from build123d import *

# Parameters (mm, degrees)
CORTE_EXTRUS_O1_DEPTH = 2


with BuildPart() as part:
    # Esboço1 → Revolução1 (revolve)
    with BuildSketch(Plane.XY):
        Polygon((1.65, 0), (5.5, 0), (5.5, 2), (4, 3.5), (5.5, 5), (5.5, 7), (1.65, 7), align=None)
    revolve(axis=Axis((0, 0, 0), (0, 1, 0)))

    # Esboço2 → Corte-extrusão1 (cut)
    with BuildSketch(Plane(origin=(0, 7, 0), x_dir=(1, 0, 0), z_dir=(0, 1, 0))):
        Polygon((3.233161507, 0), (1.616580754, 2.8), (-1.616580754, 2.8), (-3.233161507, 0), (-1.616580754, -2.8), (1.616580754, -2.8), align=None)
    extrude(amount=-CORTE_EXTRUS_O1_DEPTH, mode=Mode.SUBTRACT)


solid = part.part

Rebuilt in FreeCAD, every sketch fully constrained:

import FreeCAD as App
import Part
import Sketcher

V = App.Vector
Q = App.Units.Quantity

doc = App.newDocument("Part")
params = doc.addObject("Spreadsheet::Sheet", "Params")
for row, (alias, value) in enumerate([
    ("sketch1_height", "2 mm"),
    ("sketch1_height2", "7 mm"),
    ("sketch1_width", "3.85 mm"),
    ("revolution_angle", "360 deg"),
    ("pocket1_length", "2 mm"),
], start=1):
    params.set(f"A{row}", alias)
    params.set(f"B{row}", "=" + value)
    params.setAlias(f"B{row}", alias)

body = doc.addObject("PartDesign::Body", "Body")

# Sketch on XY plane
sketch1 = body.newObject("Sketcher::SketchObject", "Sketch")
sketch1.AttachmentSupport = (doc.getObject("XY_Plane"), [""])
sketch1.MapMode = "FlatFace"
sketch1.addGeometry(Part.LineSegment(V(1.65, 0, 0), V(5.5, 0, 0)), False)
sketch1.addGeometry(Part.LineSegment(V(5.5, 0, 0), V(5.5, 2, 0)), False)
sketch1.addGeometry(Part.LineSegment(V(5.5, 2, 0), V(4, 3.5, 0)), False)
sketch1.addGeometry(Part.LineSegment(V(4, 3.5, 0), V(5.5, 5, 0)), False)
sketch1.addGeometry(Part.LineSegment(V(5.5, 5, 0), V(5.5, 7, 0)), False)
sketch1.addGeometry(Part.LineSegment(V(5.5, 7, 0), V(1.65, 7, 0)), False)
sketch1.addGeometry(Part.LineSegment(V(1.65, 7, 0), V(1.65, 0, 0)), False)
sketch1.addConstraint(Sketcher.Constraint("Coincident", 0, 2, 1, 1))
sketch1.addConstraint(Sketcher.Constraint("Coincident", 1, 2, 2, 1))
sketch1.addConstraint(Sketcher.Constraint("Coincident", 2, 2, 3, 1))
sketch1.addConstraint(Sketcher.Constraint("Coincident", 3, 2, 4, 1))
sketch1.addConstraint(Sketcher.Constraint("Coincident", 4, 2, 5, 1))
sketch1.addConstraint(Sketcher.Constraint("Coincident", 5, 2, 6, 1))
sketch1.addConstraint(Sketcher.Constraint("Coincident", 6, 2, 0, 1))
sketch1.addConstraint(Sketcher.Constraint("Horizontal", 0))
sketch1.addConstraint(Sketcher.Constraint("Vertical", 1))
sketch1.addConstraint(Sketcher.Constraint("Vertical", 4))
sketch1.addConstraint(Sketcher.Constraint("Horizontal", 5))
sketch1.addConstraint(Sketcher.Constraint("Vertical", 6))
sketch1.addConstraint(Sketcher.Constraint("PointOnObject", 0, 2, -1))
sketch1.addConstraint(Sketcher.Constraint("Perpendicular", 2, 3))
sketch1.addConstraint(Sketcher.Constraint("Vertical", 1, 2, 3, 2))
sketch1.addConstraint(Sketcher.Constraint("Equal", 1, 4))
sketch1.addConstraint(Sketcher.Constraint("Equal", 2, 3))
sketch1.addConstraint(Sketcher.Constraint("DistanceY", 1, 1, 1, 2, Q("2 mm")))
sketch1.addConstraint(Sketcher.Constraint("DistanceY", 6, 2, 6, 1, Q("7 mm")))
sketch1.addConstraint(Sketcher.Constraint("DistanceX", -1, 1, 2, 2, Q("4 mm")))
sketch1.addConstraint(Sketcher.Constraint("DistanceX", 0, 1, 0, 2, Q("3.85 mm")))
sketch1.setExpression("Constraints[17]", "Params.sketch1_height")
sketch1.setExpression("Constraints[18]", "Params.sketch1_height2")
sketch1.setExpression("Constraints[20]", "Params.sketch1_width")
revolution = body.newObject("PartDesign::Revolution", "Revolution")
revolution.Profile = sketch1
revolution.ReferenceAxis = (sketch1, ["V_Axis"])
revolution.setExpression("Angle", "Params.revolution_angle")

# Sketch on XZ plane
sketch2 = body.newObject("Sketcher::SketchObject", "Sketch001")
sketch2.AttachmentSupport = (doc.getObject("XZ_Plane"), [""])
sketch2.MapMode = "FlatFace"
sketch2.AttachmentOffset = App.Placement(V(0, 0, -7), App.Rotation())
sketch2.addGeometry(Part.LineSegment(V(3.233162, 0, 0), V(1.616581, -2.8, 0)), False)
sketch2.addGeometry(Part.LineSegment(V(1.616581, -2.8, 0), V(-1.616581, -2.8, 0)), False)
sketch2.addGeometry(Part.LineSegment(V(-1.616581, -2.8, 0), V(-3.233162, 0, 0)), False)
sketch2.addGeometry(Part.LineSegment(V(-3.233162, 0, 0), V(-1.616581, 2.8, 0)), False)
sketch2.addGeometry(Part.LineSegment(V(-1.616581, 2.8, 0), V(1.616581, 2.8, 0)), False)
sketch2.addGeometry(Part.LineSegment(V(1.616581, 2.8, 0), V(3.233162, 0, 0)), False)
sketch2.addConstraint(Sketcher.Constraint("Coincident", 0, 2, 1, 1))
sketch2.addConstraint(Sketcher.Constraint("Coincident", 1, 2, 2, 1))
sketch2.addConstraint(Sketcher.Constraint("Coincident", 2, 2, 3, 1))
sketch2.addConstraint(Sketcher.Constraint("Coincident", 3, 2, 4, 1))
sketch2.addConstraint(Sketcher.Constraint("Coincident", 4, 2, 5, 1))
sketch2.addConstraint(Sketcher.Constraint("Coincident", 5, 2, 0, 1))
sketch2.addConstraint(Sketcher.Constraint("Horizontal", 1))
sketch2.addConstraint(Sketcher.Constraint("Horizontal", 4))
sketch2.addConstraint(Sketcher.Constraint("Symmetric", 0, 2, 3, 2, -1, 1))
sketch2.addConstraint(Sketcher.Constraint("Symmetric", 2, 2, 5, 2, -1, 1))
sketch2.addConstraint(Sketcher.Constraint("PointOnObject", 2, 2, -1))
sketch2.addConstraint(Sketcher.Constraint("Parallel", 2, 5))
sketch2.addConstraint(Sketcher.Constraint("Vertical", 1, 2, 3, 2))
sketch2.addConstraint(Sketcher.Constraint("Angle", 0, Q("-120 deg")))
sketch2.addConstraint(Sketcher.Constraint("DistanceY", 0, 2, -1, 1, Q("2.8 mm")))
sketch2.addConstraint(Sketcher.Constraint("DistanceX", 1, 2, 1, 1, Q("3.233162 mm")))
pocket1 = body.newObject("PartDesign::Pocket", "Pocket")
pocket1.Profile = sketch2
pocket1.setExpression("Length", "Params.pocket1_length")
pocket1.Reversed = True

doc.recompute()
